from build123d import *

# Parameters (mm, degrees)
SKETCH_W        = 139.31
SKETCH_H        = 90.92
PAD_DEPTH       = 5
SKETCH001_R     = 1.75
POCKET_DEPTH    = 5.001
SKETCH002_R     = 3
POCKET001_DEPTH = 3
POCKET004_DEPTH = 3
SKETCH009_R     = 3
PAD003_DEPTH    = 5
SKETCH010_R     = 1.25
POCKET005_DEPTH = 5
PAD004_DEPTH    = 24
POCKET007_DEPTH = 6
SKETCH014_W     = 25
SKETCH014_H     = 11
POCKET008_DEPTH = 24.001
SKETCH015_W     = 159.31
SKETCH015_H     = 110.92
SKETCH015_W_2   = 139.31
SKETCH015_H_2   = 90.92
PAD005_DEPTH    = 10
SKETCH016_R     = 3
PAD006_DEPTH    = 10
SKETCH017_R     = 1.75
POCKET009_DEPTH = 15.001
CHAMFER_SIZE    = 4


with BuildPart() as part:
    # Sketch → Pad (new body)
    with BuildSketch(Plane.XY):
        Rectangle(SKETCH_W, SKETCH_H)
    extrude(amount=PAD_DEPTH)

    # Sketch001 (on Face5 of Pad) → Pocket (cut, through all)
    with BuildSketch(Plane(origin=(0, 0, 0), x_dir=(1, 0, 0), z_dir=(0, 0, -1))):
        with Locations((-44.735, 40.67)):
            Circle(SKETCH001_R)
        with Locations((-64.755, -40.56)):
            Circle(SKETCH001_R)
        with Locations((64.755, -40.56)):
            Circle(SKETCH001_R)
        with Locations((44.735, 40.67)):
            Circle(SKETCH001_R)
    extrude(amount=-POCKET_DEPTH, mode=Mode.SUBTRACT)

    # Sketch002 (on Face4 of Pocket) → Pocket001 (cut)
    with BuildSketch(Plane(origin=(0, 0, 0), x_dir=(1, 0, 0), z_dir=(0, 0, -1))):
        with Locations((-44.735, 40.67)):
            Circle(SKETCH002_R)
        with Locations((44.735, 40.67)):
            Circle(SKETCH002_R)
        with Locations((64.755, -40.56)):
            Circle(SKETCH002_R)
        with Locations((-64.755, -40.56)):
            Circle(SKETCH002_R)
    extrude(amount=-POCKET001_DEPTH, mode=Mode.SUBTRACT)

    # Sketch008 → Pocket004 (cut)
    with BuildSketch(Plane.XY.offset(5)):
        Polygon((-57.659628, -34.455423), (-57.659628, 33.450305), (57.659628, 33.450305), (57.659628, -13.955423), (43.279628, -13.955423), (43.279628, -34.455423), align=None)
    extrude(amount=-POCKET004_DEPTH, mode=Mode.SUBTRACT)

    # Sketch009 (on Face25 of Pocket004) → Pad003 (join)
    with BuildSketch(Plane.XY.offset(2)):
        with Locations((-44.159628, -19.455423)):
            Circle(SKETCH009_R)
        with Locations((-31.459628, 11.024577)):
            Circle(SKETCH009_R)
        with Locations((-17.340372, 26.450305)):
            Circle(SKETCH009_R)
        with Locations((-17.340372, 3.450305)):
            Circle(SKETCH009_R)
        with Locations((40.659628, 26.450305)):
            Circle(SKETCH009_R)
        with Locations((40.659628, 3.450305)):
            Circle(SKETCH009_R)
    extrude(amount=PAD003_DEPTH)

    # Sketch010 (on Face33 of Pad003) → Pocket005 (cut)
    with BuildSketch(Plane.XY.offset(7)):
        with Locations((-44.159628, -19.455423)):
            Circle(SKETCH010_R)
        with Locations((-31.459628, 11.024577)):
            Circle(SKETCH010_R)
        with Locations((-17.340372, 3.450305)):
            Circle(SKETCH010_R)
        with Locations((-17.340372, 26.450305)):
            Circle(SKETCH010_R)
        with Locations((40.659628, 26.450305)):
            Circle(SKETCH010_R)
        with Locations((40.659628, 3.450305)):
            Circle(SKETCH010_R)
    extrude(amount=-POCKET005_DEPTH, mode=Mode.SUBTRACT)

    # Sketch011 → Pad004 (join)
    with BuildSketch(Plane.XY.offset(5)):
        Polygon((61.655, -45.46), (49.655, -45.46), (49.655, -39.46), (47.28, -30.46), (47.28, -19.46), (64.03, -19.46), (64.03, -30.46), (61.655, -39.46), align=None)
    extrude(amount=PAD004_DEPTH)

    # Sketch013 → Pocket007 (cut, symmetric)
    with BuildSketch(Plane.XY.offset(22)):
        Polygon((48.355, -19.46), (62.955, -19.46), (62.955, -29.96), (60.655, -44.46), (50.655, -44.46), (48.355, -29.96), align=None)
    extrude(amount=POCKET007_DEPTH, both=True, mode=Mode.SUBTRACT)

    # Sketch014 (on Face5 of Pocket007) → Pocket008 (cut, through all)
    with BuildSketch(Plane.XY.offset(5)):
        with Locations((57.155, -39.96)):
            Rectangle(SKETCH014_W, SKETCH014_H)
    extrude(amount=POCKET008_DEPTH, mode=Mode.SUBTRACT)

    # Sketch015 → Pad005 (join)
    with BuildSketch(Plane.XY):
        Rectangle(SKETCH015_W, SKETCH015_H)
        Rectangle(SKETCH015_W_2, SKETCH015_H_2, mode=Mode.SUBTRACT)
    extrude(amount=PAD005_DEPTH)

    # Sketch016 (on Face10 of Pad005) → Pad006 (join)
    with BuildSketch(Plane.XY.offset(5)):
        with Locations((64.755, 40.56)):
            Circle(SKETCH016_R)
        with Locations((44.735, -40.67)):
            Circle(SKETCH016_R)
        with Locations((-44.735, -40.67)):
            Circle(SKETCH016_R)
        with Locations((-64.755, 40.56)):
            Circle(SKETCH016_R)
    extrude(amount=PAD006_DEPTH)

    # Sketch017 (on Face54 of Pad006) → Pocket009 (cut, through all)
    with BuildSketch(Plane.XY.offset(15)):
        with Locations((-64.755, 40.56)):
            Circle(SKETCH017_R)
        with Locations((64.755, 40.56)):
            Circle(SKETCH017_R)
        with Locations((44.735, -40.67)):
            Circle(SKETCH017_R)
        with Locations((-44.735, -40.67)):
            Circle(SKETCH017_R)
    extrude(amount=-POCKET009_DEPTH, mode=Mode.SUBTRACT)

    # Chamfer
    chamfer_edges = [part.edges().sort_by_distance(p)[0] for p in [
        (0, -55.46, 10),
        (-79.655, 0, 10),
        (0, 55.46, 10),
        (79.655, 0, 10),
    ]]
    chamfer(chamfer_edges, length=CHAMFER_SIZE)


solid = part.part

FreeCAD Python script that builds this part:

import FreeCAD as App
import Part
import Sketcher


def edges_at(feature, points):
    """Names of the edges that pass closest to the given points."""
    edges = feature.Shape.Edges
    near = lambda p: min(range(len(edges)), key=lambda i: edges[i].distToShape(Part.Vertex(*p))[0])
    return sorted({f"Edge{near(p) + 1}" for p in points})


def add_polygon(sketch, points):
    """Adds a closed chain of lines whose ends are joined by coincident constraints."""
    first, n = sketch.GeometryCount, len(points)
    for a, b in zip(points, points[1:] + points[:1]):
        sketch.addGeometry(Part.LineSegment(App.Vector(*a, 0), App.Vector(*b, 0)), False)
    for i in range(n):
        sketch.addConstraint(Sketcher.Constraint("Coincident", first + i, 2, first + (i + 1) % n, 1))

doc = App.newDocument("Part")
body = doc.addObject("PartDesign::Body", "Body")

sketch1 = doc.addObject("Sketcher::SketchObject", "Sketch")
body.addObject(sketch1)
sketch1.AttachmentSupport = (doc.XY_Plane, [""])
sketch1.MapMode = "FlatFace"
add_polygon(sketch1, [(-70, 45), (-70, -45), (70, -45), (70, 45)])
sketch1.addConstraint([
    Sketcher.Constraint("Vertical", 0),
    Sketcher.Constraint("Horizontal", 1),
    Sketcher.Constraint("Vertical", 2),
    Sketcher.Constraint("Horizontal", 3),
    Sketcher.Constraint("Symmetric", 0, 2, 2, 2, -1, 1),
    Sketcher.Constraint("DistanceX", 1, 1, 1, 2, 139.31),
    Sketcher.Constraint("DistanceY", 0, 2, 0, 1, 90.92),
])
pad1 = doc.addObject("PartDesign::Pad", "Pad")
body.addObject(pad1)
pad1.Profile = sketch1
pad1.Length = 5

sketch2 = doc.addObject("Sketcher::SketchObject", "Sketch001")
body.addObject(sketch2)
sketch2.AttachmentSupport = (doc.XY_Plane, [""])
sketch2.MapMode = "FlatFace"
sketch2.addGeometry([
    Part.Circle(App.Vector(-44.7, -40.7, 0), App.Vector(0, 0, 1), 1.8),
    Part.Circle(App.Vector(-64.8, 40.6, 0), App.Vector(0, 0, 1), 1.8),
    Part.Circle(App.Vector(64.8, 40.6, 0), App.Vector(0, 0, 1), 1.8),
    Part.Circle(App.Vector(44.7, -40.7, 0), App.Vector(0, 0, 1), 1.8),
], False)
sketch2.addConstraint([
    Sketcher.Constraint("Equal", 0, 1),
    Sketcher.Constraint("Equal", 1, 2),
    Sketcher.Constraint("Equal", 2, 3),
    Sketcher.Constraint("Symmetric", 1, 3, 2, 3, -2),
    Sketcher.Constraint("Symmetric", 0, 3, 3, 3, -2),
    Sketcher.Constraint("Diameter", 0, 3.5),
    Sketcher.Constraint("DistanceY", 0, 3, -1, 1, 40.67),
    Sketcher.Constraint("DistanceY", -1, 1, 1, 3, 40.56),
    Sketcher.Constraint("DistanceX", 1, 3, 0, 3, 20.02),
    Sketcher.Constraint("DistanceX", 1, 3, 2, 3, 129.51),
])
pocket1 = doc.addObject("PartDesign::Pocket", "Pocket")
body.addObject(pocket1)
pocket1.Profile = sketch2
pocket1.Type = "ThroughAll"
pocket1.Reversed = True

sketch3 = doc.addObject("Sketcher::SketchObject", "Sketch002")
body.addObject(sketch3)
sketch3.AttachmentSupport = (doc.XY_Plane, [""])
sketch3.MapMode = "FlatFace"
sketch3.addGeometry([
    Part.Circle(App.Vector(-44.7, -40.7, 0), App.Vector(0, 0, 1), 3),
    Part.Circle(App.Vector(44.7, -40.7, 0), App.Vector(0, 0, 1), 3),
    Part.Circle(App.Vector(64.8, 40.6, 0), App.Vector(0, 0, 1), 3),
    Part.Circle(App.Vector(-64.8, 40.6, 0), App.Vector(0, 0, 1), 3),
], False)
sketch3.addConstraint([
    Sketcher.Constraint("Equal", 0, 1),
    Sketcher.Constraint("Equal", 1, 2),
    Sketcher.Constraint("Equal", 2, 3),
    Sketcher.Constraint("Symmetric", 0, 3, 1, 3, -2),
    Sketcher.Constraint("Symmetric", 2, 3, 3, 3, -2),
    Sketcher.Constraint("Diameter", 0, 6.0),
    Sketcher.Constraint("DistanceY", 0, 3, -1, 1, 40.67),
    Sketcher.Constraint("DistanceY", -1, 1, 2, 3, 40.56),
    Sketcher.Constraint("DistanceX", 0, 3, 1, 3, 89.47),
    Sketcher.Constraint("DistanceX", 1, 3, 2, 3, 20.02),
])
pocket2 = doc.addObject("PartDesign::Pocket", "Pocket001")
body.addObject(pocket2)
pocket2.Profile = sketch3
pocket2.Length = 3
pocket2.Reversed = True

sketch4 = doc.addObject("Sketcher::SketchObject", "Sketch003")
body.addObject(sketch4)
sketch4.AttachmentSupport = (doc.XY_Plane, [""])
sketch4.MapMode = "FlatFace"
sketch4.AttachmentOffset = App.Placement(App.Vector(0, 0, 5), App.Rotation())
add_polygon(sketch4, [(-58, 33), (-58, -34), (43, -34), (43, -14), (58, -14), (58, 33)])
sketch4.addConstraint([
    Sketcher.Constraint("Vertical", 0),
    Sketcher.Constraint("Horizontal", 1),
    Sketcher.Constraint("Vertical", 2),
    Sketcher.Constraint("Horizontal", 3),
    Sketcher.Constraint("Vertical", 4),
    Sketcher.Constraint("Horizontal", 5),
    Sketcher.Constraint("DistanceY", 2, 1, 2, 2, 20.5),
    Sketcher.Constraint("DistanceX", 3, 1, 3, 2, 14.38),
    Sketcher.Constraint("DistanceY", 0, 2, 0, 1, 67.905728),
    Sketcher.Constraint("DistanceX", 1, 1, 1, 2, 100.939256),
    Sketcher.Constraint("DistanceX", -1, 1, 1, 2, 43.279628),
    Sketcher.Constraint("DistanceY", 0, 2, -1, 1, 34.455423),
])
pocket3 = doc.addObject("PartDesign::Pocket", "Pocket002")
body.addObject(pocket3)
pocket3.Profile = sketch4
pocket3.Length = 3

sketch5 = doc.addObject("Sketcher::SketchObject", "Sketch004")
body.addObject(sketch5)
sketch5.AttachmentSupport = (doc.XY_Plane, [""])
sketch5.MapMode = "FlatFace"
sketch5.AttachmentOffset = App.Placement(App.Vector(0, 0, 2), App.Rotation())
sketch5.addGeometry([
    Part.Circle(App.Vector(-44.2, -19.5, 0), App.Vector(0, 0, 1), 3),
    Part.Circle(App.Vector(-31.5, 11, 0), App.Vector(0, 0, 1), 3),
    Part.Circle(App.Vector(-17.3, 26.5, 0), App.Vector(0, 0, 1), 3),
    Part.Circle(App.Vector(-17.3, 3.5, 0), App.Vector(0, 0, 1), 3),
    Part.Circle(App.Vector(40.7, 26.5, 0), App.Vector(0, 0, 1), 3),
    Part.Circle(App.Vector(40.7, 3.5, 0), App.Vector(0, 0, 1), 3),
], False)
sketch5.addConstraint([
    Sketcher.Constraint("Equal", 0, 1),
    Sketcher.Constraint("Equal", 1, 2),
    Sketcher.Constraint("Equal", 2, 3),
    Sketcher.Constraint("Equal", 3, 4),
    Sketcher.Constraint("Equal", 4, 5),
    Sketcher.Constraint("Horizontal", 2, 3, 4, 3),
    Sketcher.Constraint("Horizontal", 3, 3, 5, 3),
    Sketcher.Constraint("Vertical", 2, 3, 3, 3),
    Sketcher.Constraint("Vertical", 4, 3, 5, 3),
    Sketcher.Constraint("Diameter", 0, 6.0),
    Sketcher.Constraint("DistanceY", 3, 3, 2, 3, 23.0),
    Sketcher.Constraint("DistanceX", 2, 3, 4, 3, 58.0),
    Sketcher.Constraint("DistanceX", 0, 3, 1, 3, 12.7),
    Sketcher.Constraint("DistanceY", 0, 3, 1, 3, 30.48),
    Sketcher.Constraint("DistanceX", 2, 3, -1, 1, 17.340372),
    Sketcher.Constraint("DistanceY", 0, 3, 3, 3, 22.905728),
    Sketcher.Constraint("DistanceX", 0, 3, -1, 1, 44.159628),
    Sketcher.Constraint("DistanceY", 0, 3, -1, 1, 19.455423),
])
pad2 = doc.addObject("PartDesign::Pad", "Pad001")
body.addObject(pad2)
pad2.Profile = sketch5
pad2.Length = 5

sketch6 = doc.addObject("Sketcher::SketchObject", "Sketch005")
body.addObject(sketch6)
sketch6.AttachmentSupport = (doc.XY_Plane, [""])
sketch6.MapMode = "FlatFace"
sketch6.AttachmentOffset = App.Placement(App.Vector(0, 0, 7), App.Rotation())
sketch6.addGeometry([
    Part.Circle(App.Vector(-44.2, -19.5, 0), App.Vector(0, 0, 1), 1.2),
    Part.Circle(App.Vector(-31.5, 11, 0), App.Vector(0, 0, 1), 1.2),
    Part.Circle(App.Vector(-17.3, 3.5, 0), App.Vector(0, 0, 1), 1.2),
    Part.Circle(App.Vector(-17.3, 26.5, 0), App.Vector(0, 0, 1), 1.2),
    Part.Circle(App.Vector(40.7, 26.5, 0), App.Vector(0, 0, 1), 1.2),
    Part.Circle(App.Vector(40.7, 3.5, 0), App.Vector(0, 0, 1), 1.2),
], False)
sketch6.addConstraint([
    Sketcher.Constraint("Equal", 0, 1),
    Sketcher.Constraint("Equal", 1, 2),
    Sketcher.Constraint("Equal", 2, 3),
    Sketcher.Constraint("Equal", 3, 4),
    Sketcher.Constraint("Equal", 4, 5),
    Sketcher.Constraint("Horizontal", 3, 3, 4, 3),
    Sketcher.Constraint("Horizontal", 2, 3, 5, 3),
    Sketcher.Constraint("Vertical", 2, 3, 3, 3),
    Sketcher.Constraint("Vertical", 4, 3, 5, 3),
    Sketcher.Constraint("Diameter", 0, 2.5),
    Sketcher.Constraint("DistanceY", 2, 3, 3, 3, 23.0),
    Sketcher.Constraint("DistanceX", 3, 3, 4, 3, 58.0),
    Sketcher.Constraint("DistanceX", 0, 3, 1, 3, 12.7),
    Sketcher.Constraint("DistanceY", 0, 3, 1, 3, 30.48),
    Sketcher.Constraint("DistanceX", 2, 3, -1, 1, 17.340372),
    Sketcher.Constraint("DistanceY", 0, 3, 2, 3, 22.905728),
    Sketcher.Constraint("DistanceX", 0, 3, -1, 1, 44.159628),
    Sketcher.Constraint("DistanceY", 0, 3, -1, 1, 19.455423),
])
pocket4 = doc.addObject("PartDesign::Pocket", "Pocket003")
body.addObject(pocket4)
pocket4.Profile = sketch6
pocket4.Length = 5

sketch7 = doc.addObject("Sketcher::SketchObject", "Sketch006")
body.addObject(sketch7)
sketch7.AttachmentSupport = (doc.XY_Plane, [""])
sketch7.MapMode = "FlatFace"
sketch7.AttachmentOffset = App.Placement(App.Vector(0, 0, 5), App.Rotation())
add_polygon(sketch7, [(50, -45), (62, -45), (62, -39), (64, -30), (64, -19), (47, -19), (47, -30), (50, -39)])
sketch7.addConstraint([
    Sketcher.Constraint("Horizontal", 0),
    Sketcher.Constraint("Vertical", 1),
    Sketcher.Constraint("Vertical", 3),
    Sketcher.Constraint("Horizontal", 4),
    Sketcher.Constraint("Vertical", 5),
    Sketcher.Constraint("Vertical", 7),
    Sketcher.Constraint("Horizontal", 2, 2, 5, 2),
    Sketcher.Constraint("Horizontal", 1, 2, 6, 2),
    Sketcher.Constraint("Equal", 2, 6),
    Sketcher.Constraint("DistanceX", 0, 1, 0, 2, 12.0),
    Sketcher.Constraint("DistanceY", 1, 1, 1, 2, 6.0),
    Sketcher.Constraint("DistanceY", 3, 1, 3, 2, 11.0),
    Sketcher.Constraint("DistanceY", 1, 2, 2, 2, 9.0),
    Sketcher.Constraint("DistanceX", 4, 2, 4, 1, 16.75),
    Sketcher.Constraint("DistanceY", 0, 2, -1, 1, 45.46),
    Sketcher.Constraint("DistanceX", -1, 1, 2, 2, 64.03),
])
pad3 = doc.addObject("PartDesign::Pad", "Pad002")
body.addObject(pad3)
pad3.Profile = sketch7
pad3.Length = 24

sketch8 = doc.addObject("Sketcher::SketchObject", "Sketch007")
body.addObject(sketch8)
sketch8.AttachmentSupport = (doc.XY_Plane, [""])
sketch8.MapMode = "FlatFace"
sketch8.AttachmentOffset = App.Placement(App.Vector(0, 0, 22), App.Rotation())
add_polygon(sketch8, [(63, -19), (48, -19), (48, -30), (51, -44), (61, -44), (63, -30)])
sketch8.addConstraint([
    Sketcher.Constraint("Horizontal", 0),
    Sketcher.Constraint("Vertical", 1),
    Sketcher.Constraint("Horizontal", 3),
    Sketcher.Constraint("Vertical", 5),
    Sketcher.Constraint("Horizontal", 1, 2, 4, 2),
    Sketcher.Constraint("Equal", 2, 4),
    Sketcher.Constraint("DistanceX", 3, 1, 3, 2, 10.0),
    Sketcher.Constraint("DistanceX", 0, 2, 0, 1, 14.6),
    Sketcher.Constraint("DistanceY", 1, 2, 1, 1, 10.5),
    Sketcher.Constraint("DistanceY", 2, 2, 0, 2, 25.0),
    Sketcher.Constraint("DistanceY", 0, 2, -1, 1, 19.46),
    Sketcher.Constraint("DistanceX", -1, 1, 0, 2, 48.355),
])
pocket5 = doc.addObject("PartDesign::Pocket", "Pocket004")
body.addObject(pocket5)
pocket5.Profile = sketch8
pocket5.Length = 12
pocket5.Midplane = True

sketch9 = doc.addObject("Sketcher::SketchObject", "Sketch008")
body.addObject(sketch9)
sketch9.AttachmentSupport = (doc.XY_Plane, [""])
sketch9.MapMode = "FlatFace"
sketch9.AttachmentOffset = App.Placement(App.Vector(0, 0, 5), App.Rotation())
add_polygon(sketch9, [(45, -34), (45, -45), (70, -45), (70, -34)])
sketch9.addConstraint([
    Sketcher.Constraint("Vertical", 0),
    Sketcher.Constraint("Horizontal", 1),
    Sketcher.Constraint("Vertical", 2),
    Sketcher.Constraint("Horizontal", 3),
    Sketcher.Constraint("DistanceX", 1, 1, 1, 2, 25.0),
    Sketcher.Constraint("DistanceY", 0, 2, 0, 1, 11.0),
    Sketcher.Constraint("DistanceY", 0, 2, -1, 1, 45.46),
    Sketcher.Constraint("DistanceX", -1, 1, 0, 2, 44.655),
])
pocket6 = doc.addObject("PartDesign::Pocket", "Pocket005")
body.addObject(pocket6)
pocket6.Profile = sketch9
pocket6.Type = "ThroughAll"
pocket6.Reversed = True

sketch10 = doc.addObject("Sketcher::SketchObject", "Sketch009")
body.addObject(sketch10)
sketch10.AttachmentSupport = (doc.XY_Plane, [""])
sketch10.MapMode = "FlatFace"
add_polygon(sketch10, [(-80, 55), (-80, -55), (80, -55), (80, 55)])
add_polygon(sketch10, [(70, -45), (-70, -45), (-70, 45), (70, 45)])
sketch10.addConstraint([
    Sketcher.Constraint("Vertical", 0),
    Sketcher.Constraint("Horizontal", 1),
    Sketcher.Constraint("Vertical", 2),
    Sketcher.Constraint("Horizontal", 3),
    Sketcher.Constraint("Horizontal", 4),
    Sketcher.Constraint("Vertical", 5),
    Sketcher.Constraint("Horizontal", 6),
    Sketcher.Constraint("Vertical", 7),
    Sketcher.Constraint("Symmetric", 0, 2, 2, 2, -1, 1),
    Sketcher.Constraint("Symmetric", 4, 2, 6, 2, -1, 1),
    Sketcher.Constraint("DistanceX", 0, 2, 4, 2, 10.0),
    Sketcher.Constraint("DistanceY", 0, 2, 4, 2, 10.0),
    Sketcher.Constraint("DistanceX", 1, 1, 1, 2, 159.31),
    Sketcher.Constraint("DistanceY", 0, 2, 0, 1, 110.92),
])
pad4 = doc.addObject("PartDesign::Pad", "Pad003")
body.addObject(pad4)
pad4.Profile = sketch10
pad4.Length = 10

sketch11 = doc.addObject("Sketcher::SketchObject", "Sketch010")
body.addObject(sketch11)
sketch11.AttachmentSupport = (doc.XY_Plane, [""])
sketch11.MapMode = "FlatFace"
sketch11.AttachmentOffset = App.Placement(App.Vector(0, 0, 5), App.Rotation())
sketch11.addGeometry([
    Part.Circle(App.Vector(64.8, 40.6, 0), App.Vector(0, 0, 1), 3),
    Part.Circle(App.Vector(44.7, -40.7, 0), App.Vector(0, 0, 1), 3),
    Part.Circle(App.Vector(-44.7, -40.7, 0), App.Vector(0, 0, 1), 3),
    Part.Circle(App.Vector(-64.8, 40.6, 0), App.Vector(0, 0, 1), 3),
], False)
sketch11.addConstraint([
    Sketcher.Constraint("Equal", 0, 1),
    Sketcher.Constraint("Equal", 1, 2),
    Sketcher.Constraint("Equal", 2, 3),
    Sketcher.Constraint("Symmetric", 1, 3, 2, 3, -2),
    Sketcher.Constraint("Symmetric", 0, 3, 3, 3, -2),
    Sketcher.Constraint("Diameter", 0, 6.0),
    Sketcher.Constraint("DistanceY", -1, 1, 0, 3, 40.56),
    Sketcher.Constraint("DistanceY", 1, 3, -1, 1, 40.67),
    Sketcher.Constraint("DistanceX", 1, 3, 0, 3, 20.02),
    Sketcher.Constraint("DistanceX", 2, 3, 1, 3, 89.47),
])
pad5 = doc.addObject("PartDesign::Pad", "Pad004")
body.addObject(pad5)
pad5.Profile = sketch11
pad5.Length = 10

sketch12 = doc.addObject("Sketcher::SketchObject", "Sketch011")
body.addObject(sketch12)
sketch12.AttachmentSupport = (doc.XY_Plane, [""])
sketch12.MapMode = "FlatFace"
sketch12.AttachmentOffset = App.Placement(App.Vector(0, 0, 15), App.Rotation())
sketch12.addGeometry([
    Part.Circle(App.Vector(-64.8, 40.6, 0), App.Vector(0, 0, 1), 1.8),
    Part.Circle(App.Vector(64.8, 40.6, 0), App.Vector(0, 0, 1), 1.8),
    Part.Circle(App.Vector(44.7, -40.7, 0), App.Vector(0, 0, 1), 1.8),
    Part.Circle(App.Vector(-44.7, -40.7, 0), App.Vector(0, 0, 1), 1.8),
], False)
sketch12.addConstraint([
    Sketcher.Constraint("Equal", 0, 1),
    Sketcher.Constraint("Equal", 1, 2),
    Sketcher.Constraint("Equal", 2, 3),
    Sketcher.Constraint("Symmetric", 0, 3, 1, 3, -2),
    Sketcher.Constraint("Symmetric", 2, 3, 3, 3, -2),
    Sketcher.Constraint("Diameter", 0, 3.5),
    Sketcher.Constraint("DistanceY", -1, 1, 0, 3, 40.56),
    Sketcher.Constraint("DistanceY", 2, 3, -1, 1, 40.67),
    Sketcher.Constraint("DistanceX", 0, 3, 1, 3, 129.51),
    Sketcher.Constraint("DistanceX", 2, 3, 1, 3, 20.02),
])
pocket7 = doc.addObject("PartDesign::Pocket", "Pocket006")
body.addObject(pocket7)
pocket7.Profile = sketch12
pocket7.Type = "ThroughAll"
doc.recompute()

chamfer = doc.addObject("PartDesign::Chamfer", "Chamfer")
body.addObject(chamfer)
chamfer.Base = (pocket7, edges_at(pocket7, [
    (0, -55.46, 10),
    (-79.655, 0, 10),
    (0, 55.46, 10),
    (79.655, 0, 10),
]))
chamfer.Size = 4

doc.recompute()
